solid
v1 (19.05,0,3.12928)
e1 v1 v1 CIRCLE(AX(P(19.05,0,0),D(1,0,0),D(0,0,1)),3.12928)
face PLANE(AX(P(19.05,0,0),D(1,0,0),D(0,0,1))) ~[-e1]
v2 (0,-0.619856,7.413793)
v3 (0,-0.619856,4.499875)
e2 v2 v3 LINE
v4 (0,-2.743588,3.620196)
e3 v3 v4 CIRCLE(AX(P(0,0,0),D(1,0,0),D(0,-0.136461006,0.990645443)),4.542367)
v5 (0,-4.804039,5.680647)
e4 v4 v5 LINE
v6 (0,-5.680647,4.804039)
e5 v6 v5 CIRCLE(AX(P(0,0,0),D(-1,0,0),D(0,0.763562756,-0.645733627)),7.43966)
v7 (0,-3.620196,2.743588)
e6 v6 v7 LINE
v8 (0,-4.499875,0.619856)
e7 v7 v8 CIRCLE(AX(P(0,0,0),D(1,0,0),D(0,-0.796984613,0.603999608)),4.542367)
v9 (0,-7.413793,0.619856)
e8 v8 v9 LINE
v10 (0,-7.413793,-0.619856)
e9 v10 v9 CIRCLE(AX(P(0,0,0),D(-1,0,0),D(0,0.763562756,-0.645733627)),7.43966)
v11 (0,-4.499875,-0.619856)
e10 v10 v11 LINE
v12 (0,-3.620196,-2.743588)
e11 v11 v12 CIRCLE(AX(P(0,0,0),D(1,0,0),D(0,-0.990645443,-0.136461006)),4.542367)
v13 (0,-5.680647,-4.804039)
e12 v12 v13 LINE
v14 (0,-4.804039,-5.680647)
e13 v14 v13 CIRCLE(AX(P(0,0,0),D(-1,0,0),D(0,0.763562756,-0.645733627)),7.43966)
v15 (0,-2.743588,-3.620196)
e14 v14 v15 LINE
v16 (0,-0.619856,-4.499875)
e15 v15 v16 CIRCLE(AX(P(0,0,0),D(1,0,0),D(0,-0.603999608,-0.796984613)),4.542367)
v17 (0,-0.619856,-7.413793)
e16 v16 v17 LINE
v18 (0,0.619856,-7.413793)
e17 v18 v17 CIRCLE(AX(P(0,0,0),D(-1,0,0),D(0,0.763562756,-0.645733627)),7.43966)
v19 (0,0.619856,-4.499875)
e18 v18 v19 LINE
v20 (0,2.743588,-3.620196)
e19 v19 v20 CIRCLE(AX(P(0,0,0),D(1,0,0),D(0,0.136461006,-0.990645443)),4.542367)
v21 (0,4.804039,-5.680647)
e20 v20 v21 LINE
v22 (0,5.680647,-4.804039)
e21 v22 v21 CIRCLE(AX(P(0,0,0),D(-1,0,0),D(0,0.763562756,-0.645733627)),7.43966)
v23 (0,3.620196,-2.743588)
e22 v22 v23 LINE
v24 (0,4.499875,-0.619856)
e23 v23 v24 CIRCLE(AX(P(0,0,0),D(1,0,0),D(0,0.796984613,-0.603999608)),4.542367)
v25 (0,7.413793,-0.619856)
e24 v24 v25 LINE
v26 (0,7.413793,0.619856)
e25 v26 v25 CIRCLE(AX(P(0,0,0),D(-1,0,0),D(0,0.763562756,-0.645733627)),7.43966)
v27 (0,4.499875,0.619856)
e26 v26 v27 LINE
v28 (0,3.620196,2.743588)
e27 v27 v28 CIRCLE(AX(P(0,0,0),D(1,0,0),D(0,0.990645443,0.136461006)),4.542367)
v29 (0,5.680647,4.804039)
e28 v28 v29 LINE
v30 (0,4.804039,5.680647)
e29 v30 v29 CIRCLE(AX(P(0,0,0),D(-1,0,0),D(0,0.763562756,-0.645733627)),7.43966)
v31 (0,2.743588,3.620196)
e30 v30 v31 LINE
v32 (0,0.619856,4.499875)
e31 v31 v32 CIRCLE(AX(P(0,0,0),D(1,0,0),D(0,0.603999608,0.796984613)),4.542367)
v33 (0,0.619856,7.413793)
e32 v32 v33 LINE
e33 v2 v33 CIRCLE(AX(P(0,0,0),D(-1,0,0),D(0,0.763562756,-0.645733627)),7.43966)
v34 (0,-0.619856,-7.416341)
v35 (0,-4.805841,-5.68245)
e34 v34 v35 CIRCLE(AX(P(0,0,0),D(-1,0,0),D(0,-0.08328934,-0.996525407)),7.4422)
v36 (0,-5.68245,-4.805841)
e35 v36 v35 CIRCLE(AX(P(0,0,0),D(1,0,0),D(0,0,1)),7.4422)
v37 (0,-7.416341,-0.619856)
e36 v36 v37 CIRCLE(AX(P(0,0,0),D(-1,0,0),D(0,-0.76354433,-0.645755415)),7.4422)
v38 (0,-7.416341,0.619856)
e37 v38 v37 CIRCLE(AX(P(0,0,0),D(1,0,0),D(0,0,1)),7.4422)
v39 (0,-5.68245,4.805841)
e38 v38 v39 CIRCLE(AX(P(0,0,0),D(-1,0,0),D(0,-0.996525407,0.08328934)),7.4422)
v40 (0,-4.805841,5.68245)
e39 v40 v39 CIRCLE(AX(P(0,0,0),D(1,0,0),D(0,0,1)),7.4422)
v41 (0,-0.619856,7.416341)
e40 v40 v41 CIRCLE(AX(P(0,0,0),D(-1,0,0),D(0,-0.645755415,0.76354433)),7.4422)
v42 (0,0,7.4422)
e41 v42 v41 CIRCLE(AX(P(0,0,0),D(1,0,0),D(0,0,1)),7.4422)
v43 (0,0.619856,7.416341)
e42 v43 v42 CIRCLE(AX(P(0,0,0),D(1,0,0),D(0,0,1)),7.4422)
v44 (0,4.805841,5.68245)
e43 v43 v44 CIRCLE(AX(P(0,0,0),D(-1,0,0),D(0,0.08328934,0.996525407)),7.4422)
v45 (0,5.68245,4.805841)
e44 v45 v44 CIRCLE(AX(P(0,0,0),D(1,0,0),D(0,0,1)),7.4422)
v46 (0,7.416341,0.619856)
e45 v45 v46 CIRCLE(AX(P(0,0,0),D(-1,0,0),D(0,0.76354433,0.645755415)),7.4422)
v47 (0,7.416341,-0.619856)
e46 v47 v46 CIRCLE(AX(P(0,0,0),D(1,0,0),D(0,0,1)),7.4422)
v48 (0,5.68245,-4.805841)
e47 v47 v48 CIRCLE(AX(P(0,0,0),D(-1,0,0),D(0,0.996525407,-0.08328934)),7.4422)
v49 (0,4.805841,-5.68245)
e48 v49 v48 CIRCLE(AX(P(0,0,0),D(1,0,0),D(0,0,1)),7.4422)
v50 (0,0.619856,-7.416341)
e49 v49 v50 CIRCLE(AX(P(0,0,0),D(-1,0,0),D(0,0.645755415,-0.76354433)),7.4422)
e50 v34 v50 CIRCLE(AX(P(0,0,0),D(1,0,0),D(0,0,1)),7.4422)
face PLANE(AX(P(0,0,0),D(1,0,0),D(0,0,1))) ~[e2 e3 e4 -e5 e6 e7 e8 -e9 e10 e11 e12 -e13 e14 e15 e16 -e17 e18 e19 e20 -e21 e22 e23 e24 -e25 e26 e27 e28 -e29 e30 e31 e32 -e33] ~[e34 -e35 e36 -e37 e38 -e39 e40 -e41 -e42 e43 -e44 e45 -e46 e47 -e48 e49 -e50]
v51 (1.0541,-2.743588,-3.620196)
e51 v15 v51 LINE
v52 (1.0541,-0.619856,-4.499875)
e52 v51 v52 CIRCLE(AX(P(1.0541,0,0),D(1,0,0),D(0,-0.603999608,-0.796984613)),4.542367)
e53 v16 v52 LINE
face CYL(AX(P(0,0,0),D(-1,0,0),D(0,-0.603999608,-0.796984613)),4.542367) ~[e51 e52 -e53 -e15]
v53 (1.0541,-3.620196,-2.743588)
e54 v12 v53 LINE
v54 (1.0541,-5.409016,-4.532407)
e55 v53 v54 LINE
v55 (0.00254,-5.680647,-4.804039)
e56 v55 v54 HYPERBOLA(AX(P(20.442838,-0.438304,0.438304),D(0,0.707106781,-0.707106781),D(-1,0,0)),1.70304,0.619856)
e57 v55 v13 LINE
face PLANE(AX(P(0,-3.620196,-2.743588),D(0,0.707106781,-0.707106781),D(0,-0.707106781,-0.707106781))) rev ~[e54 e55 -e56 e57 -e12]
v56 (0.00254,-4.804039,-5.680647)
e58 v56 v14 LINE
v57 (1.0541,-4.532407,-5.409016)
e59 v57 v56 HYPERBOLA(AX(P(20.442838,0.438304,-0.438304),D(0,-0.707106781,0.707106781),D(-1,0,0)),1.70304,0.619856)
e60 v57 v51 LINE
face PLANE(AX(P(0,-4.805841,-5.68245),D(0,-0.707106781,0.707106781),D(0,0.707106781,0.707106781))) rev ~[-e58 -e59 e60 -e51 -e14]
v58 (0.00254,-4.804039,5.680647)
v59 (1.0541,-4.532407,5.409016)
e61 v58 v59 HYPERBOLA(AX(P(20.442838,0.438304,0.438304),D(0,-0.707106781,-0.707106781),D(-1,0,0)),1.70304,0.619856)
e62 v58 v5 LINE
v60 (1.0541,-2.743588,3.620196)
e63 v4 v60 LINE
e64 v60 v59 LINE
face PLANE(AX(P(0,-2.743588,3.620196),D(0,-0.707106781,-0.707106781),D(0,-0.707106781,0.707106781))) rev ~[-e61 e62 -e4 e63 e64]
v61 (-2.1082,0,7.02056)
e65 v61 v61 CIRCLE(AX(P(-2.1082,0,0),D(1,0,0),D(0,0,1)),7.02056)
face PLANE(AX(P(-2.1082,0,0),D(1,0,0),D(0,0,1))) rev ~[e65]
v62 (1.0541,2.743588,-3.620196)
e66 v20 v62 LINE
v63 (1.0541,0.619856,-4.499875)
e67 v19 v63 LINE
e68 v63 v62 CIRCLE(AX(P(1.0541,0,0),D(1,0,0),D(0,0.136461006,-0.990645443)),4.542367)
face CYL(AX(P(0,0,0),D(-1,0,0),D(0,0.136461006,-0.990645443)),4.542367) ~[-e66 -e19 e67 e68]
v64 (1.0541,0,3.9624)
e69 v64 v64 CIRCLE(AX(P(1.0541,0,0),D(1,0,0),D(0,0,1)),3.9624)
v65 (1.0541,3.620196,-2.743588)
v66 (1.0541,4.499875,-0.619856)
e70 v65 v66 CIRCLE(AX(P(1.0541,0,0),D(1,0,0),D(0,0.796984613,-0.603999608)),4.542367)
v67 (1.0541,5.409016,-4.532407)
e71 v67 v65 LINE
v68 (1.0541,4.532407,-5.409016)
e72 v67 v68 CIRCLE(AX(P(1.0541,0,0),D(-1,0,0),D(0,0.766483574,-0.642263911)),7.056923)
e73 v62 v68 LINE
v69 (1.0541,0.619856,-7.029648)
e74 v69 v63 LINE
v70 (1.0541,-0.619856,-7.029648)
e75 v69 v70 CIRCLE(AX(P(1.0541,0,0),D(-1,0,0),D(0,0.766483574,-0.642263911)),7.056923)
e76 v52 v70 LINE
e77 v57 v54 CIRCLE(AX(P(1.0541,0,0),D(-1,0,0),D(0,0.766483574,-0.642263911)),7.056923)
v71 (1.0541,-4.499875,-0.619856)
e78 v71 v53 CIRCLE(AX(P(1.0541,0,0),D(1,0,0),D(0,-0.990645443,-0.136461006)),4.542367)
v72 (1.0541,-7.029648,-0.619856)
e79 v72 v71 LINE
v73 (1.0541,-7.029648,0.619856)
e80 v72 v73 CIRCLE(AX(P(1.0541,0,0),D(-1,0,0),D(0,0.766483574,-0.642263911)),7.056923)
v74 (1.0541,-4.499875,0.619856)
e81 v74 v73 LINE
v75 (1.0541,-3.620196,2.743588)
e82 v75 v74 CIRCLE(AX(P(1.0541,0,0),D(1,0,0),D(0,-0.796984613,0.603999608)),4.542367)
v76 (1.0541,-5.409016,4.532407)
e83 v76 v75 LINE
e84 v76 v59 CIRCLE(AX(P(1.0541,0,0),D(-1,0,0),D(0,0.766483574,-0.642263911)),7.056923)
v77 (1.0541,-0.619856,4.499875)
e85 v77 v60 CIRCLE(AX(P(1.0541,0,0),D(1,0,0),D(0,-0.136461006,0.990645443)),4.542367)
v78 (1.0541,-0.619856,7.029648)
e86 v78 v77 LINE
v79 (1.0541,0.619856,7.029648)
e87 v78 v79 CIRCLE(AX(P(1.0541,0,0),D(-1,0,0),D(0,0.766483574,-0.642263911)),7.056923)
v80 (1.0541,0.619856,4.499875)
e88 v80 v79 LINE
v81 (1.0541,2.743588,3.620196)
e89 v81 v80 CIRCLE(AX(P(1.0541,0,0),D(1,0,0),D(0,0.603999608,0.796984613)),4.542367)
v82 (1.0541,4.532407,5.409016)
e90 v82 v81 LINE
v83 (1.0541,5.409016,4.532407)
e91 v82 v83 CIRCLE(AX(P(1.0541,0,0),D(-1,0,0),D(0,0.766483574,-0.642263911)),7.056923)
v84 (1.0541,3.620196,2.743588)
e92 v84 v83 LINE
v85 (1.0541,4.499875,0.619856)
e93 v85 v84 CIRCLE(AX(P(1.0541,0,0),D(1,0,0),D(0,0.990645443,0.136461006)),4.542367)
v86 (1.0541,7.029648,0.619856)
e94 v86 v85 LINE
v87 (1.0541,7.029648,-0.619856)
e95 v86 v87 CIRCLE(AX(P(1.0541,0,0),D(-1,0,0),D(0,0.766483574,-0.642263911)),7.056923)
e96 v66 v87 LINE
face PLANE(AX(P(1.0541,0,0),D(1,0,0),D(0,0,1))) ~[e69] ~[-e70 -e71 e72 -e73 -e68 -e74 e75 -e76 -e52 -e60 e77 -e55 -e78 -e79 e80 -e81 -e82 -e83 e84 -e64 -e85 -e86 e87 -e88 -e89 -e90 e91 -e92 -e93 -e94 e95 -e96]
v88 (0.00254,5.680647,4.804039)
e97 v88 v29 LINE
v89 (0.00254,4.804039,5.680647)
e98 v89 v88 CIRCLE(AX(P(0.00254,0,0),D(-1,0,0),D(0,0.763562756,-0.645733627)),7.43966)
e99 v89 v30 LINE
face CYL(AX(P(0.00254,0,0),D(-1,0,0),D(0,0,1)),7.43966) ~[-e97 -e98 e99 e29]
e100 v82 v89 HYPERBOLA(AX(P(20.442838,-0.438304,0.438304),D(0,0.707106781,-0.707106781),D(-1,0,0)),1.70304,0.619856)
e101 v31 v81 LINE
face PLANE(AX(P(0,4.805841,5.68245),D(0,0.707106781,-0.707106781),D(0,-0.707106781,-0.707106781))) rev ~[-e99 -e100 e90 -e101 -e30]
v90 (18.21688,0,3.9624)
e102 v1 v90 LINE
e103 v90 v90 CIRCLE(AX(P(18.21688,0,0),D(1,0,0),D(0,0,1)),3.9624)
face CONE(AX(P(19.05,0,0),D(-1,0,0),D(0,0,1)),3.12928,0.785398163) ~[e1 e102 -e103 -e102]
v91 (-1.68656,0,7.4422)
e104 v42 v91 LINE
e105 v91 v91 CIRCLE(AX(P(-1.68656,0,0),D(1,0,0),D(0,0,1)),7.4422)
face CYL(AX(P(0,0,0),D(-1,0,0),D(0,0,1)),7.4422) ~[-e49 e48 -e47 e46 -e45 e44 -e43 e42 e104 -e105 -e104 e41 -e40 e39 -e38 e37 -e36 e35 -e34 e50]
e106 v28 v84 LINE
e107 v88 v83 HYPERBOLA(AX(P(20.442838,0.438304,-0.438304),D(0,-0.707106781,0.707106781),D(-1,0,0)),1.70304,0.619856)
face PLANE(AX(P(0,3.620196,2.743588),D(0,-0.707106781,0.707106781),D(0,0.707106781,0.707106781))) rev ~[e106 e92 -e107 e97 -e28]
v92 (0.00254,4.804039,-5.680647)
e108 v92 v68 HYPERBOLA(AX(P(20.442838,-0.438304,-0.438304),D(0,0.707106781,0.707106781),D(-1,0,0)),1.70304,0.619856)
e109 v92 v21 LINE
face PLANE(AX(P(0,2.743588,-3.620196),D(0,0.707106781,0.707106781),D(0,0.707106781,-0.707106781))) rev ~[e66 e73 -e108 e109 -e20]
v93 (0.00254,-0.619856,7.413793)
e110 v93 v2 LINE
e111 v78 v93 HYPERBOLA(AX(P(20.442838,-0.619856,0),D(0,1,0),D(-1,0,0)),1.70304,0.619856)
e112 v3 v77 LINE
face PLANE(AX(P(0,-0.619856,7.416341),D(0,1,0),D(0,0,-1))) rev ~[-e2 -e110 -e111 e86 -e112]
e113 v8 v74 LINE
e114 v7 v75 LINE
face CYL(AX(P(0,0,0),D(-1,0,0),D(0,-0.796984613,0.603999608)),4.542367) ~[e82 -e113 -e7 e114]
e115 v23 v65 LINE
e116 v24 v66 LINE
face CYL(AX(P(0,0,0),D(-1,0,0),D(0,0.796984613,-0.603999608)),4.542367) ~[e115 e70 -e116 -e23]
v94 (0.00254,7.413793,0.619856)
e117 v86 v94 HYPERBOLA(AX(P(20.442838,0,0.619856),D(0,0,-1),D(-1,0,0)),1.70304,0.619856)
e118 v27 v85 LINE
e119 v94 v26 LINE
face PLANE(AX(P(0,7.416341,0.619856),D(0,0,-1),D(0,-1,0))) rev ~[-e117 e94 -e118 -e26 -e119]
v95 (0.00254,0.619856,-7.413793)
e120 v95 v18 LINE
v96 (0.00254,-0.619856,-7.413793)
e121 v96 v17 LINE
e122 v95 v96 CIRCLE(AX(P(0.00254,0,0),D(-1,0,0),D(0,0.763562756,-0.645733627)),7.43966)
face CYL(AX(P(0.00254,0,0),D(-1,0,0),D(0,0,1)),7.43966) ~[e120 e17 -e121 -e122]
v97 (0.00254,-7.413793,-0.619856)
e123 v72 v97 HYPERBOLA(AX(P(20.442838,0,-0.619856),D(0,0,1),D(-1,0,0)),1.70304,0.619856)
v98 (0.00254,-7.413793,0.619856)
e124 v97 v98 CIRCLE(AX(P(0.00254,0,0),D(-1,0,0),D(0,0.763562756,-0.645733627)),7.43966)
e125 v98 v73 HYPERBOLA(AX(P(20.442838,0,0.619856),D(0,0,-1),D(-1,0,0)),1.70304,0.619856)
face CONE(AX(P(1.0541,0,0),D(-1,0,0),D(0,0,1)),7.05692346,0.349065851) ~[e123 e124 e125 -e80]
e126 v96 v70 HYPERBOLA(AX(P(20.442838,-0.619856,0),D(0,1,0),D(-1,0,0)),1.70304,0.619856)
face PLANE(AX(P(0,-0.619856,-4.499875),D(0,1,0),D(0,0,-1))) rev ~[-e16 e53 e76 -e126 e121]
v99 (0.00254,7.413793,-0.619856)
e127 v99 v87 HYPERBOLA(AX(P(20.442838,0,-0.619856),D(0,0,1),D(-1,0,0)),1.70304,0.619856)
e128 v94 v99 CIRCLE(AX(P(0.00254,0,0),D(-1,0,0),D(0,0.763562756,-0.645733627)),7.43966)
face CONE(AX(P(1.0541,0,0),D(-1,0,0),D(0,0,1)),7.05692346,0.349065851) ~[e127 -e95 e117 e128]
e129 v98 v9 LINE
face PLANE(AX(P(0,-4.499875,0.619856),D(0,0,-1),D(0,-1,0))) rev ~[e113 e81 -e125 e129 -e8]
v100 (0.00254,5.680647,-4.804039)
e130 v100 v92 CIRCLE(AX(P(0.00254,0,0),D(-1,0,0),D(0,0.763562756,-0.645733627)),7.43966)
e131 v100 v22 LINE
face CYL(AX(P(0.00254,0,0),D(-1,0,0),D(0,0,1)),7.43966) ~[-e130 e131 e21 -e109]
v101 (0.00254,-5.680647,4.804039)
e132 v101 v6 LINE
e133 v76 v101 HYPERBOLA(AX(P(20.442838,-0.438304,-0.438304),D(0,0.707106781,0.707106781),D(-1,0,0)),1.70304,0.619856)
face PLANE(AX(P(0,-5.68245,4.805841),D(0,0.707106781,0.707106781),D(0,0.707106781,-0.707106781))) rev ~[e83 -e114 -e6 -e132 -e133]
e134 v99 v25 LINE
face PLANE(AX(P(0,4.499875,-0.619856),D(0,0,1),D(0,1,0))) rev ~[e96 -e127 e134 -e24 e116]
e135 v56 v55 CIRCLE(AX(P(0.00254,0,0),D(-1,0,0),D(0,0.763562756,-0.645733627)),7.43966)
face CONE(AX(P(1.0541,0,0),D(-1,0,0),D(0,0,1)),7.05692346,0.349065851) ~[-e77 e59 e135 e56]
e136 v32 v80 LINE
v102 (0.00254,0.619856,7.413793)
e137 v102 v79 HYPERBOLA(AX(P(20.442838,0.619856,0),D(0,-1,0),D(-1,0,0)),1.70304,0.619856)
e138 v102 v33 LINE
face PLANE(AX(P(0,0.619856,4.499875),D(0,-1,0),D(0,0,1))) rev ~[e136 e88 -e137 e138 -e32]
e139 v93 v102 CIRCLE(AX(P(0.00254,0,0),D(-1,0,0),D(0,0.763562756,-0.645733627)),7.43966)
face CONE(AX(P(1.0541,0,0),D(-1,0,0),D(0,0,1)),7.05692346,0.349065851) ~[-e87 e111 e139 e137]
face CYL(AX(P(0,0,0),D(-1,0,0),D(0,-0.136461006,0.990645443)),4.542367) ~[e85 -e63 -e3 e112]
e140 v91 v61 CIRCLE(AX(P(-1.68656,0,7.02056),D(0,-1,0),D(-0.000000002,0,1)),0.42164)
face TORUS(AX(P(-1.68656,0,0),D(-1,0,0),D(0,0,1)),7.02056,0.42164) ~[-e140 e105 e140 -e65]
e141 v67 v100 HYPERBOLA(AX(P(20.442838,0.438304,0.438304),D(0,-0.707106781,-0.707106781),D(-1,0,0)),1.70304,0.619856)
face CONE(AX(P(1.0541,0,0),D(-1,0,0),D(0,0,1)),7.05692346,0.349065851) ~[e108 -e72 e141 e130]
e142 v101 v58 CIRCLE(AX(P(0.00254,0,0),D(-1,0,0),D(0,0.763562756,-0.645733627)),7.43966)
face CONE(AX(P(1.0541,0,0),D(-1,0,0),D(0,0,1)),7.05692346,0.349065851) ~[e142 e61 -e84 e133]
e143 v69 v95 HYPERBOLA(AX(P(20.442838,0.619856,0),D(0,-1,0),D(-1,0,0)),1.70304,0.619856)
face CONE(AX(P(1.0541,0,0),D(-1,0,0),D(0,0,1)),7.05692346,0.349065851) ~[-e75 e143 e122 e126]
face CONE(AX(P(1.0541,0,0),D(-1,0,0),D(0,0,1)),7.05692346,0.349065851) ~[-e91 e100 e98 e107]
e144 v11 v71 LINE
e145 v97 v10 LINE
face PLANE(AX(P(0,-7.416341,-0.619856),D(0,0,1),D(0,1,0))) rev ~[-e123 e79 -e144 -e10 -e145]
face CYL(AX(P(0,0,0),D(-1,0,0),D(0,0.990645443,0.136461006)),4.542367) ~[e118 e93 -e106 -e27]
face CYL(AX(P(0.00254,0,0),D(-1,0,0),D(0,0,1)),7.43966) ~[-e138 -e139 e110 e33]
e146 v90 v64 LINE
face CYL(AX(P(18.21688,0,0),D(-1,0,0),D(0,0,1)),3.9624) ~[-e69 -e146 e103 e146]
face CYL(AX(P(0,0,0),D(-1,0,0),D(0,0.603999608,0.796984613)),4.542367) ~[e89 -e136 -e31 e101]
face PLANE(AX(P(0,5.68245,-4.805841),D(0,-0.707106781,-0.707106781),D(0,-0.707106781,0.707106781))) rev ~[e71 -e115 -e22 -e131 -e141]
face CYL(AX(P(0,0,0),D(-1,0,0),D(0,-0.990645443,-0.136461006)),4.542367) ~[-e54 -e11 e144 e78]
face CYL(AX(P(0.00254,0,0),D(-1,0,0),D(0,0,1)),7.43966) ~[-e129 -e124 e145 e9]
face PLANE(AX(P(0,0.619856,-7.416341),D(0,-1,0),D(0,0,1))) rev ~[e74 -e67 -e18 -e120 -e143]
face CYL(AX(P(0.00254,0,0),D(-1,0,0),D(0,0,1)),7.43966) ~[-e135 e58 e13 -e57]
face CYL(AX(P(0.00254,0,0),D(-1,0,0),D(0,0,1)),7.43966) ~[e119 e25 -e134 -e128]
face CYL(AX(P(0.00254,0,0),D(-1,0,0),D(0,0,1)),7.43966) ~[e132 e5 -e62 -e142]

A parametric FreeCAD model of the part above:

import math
import FreeCAD as App
import Part
import Sketcher
from FreeCAD import Vector
Q = App.Units.Quantity

doc = App.newDocument("Part")
params = doc.addObject("Spreadsheet::Sheet", "Params")
for row, (alias, value) in enumerate([
    ("sketch1_width", "0.833 in"),
    ("revolution_angle", "360 deg"),
    ("sketch2_radius", "0.293 in"),
    ("pocket1_length", "0.0415 in"),
], start=1):
    params.set(f"A{row}", alias)
    params.set(f"B{row}", "=" + value)
    params.setAlias(f"B{row}", alias)

body = doc.addObject("PartDesign::Body", "Body")

sketch1 = body.newObject("Sketcher::SketchObject", "Sketch")
sketch1.AttachmentSupport = (doc.getObject("XY_Plane"), [""])
sketch1.MapMode = "FlatFace"
sketch1.addGeometry(Part.LineSegment(Vector(-2.1082, 7.0206, 0), Vector(-2.1082, 0, 0)), False)
sketch1.addGeometry(Part.LineSegment(Vector(-2.1082, 0, 0), Vector(19.05, 0, 0)), False)
sketch1.addGeometry(Part.LineSegment(Vector(19.05, 0, 0), Vector(19.05, 3.1293, 0)), False)
sketch1.addGeometry(Part.LineSegment(Vector(19.05, 3.1293, 0), Vector(18.2169, 3.9624, 0)), False)
sketch1.addGeometry(Part.LineSegment(Vector(18.2169, 3.9624, 0), Vector(1.0541, 3.9624, 0)), False)
sketch1.addGeometry(Part.LineSegment(Vector(1.0541, 3.9624, 0), Vector(1.0541, 7.0569, 0)), False)
sketch1.addGeometry(Part.LineSegment(Vector(1.0541, 7.0569, 0), Vector(0.0025, 7.4397, 0)), False)
sketch1.addGeometry(Part.LineSegment(Vector(0.0025, 7.4397, 0), Vector(0, 7.4397, 0)), False)
sketch1.addGeometry(Part.LineSegment(Vector(0, 7.4397, 0), Vector(0, 7.4422, 0)), False)
sketch1.addGeometry(Part.LineSegment(Vector(0, 7.4422, 0), Vector(-1.6866, 7.4422, 0)), False)
sketch1.addGeometry(Part.ArcOfCircle(Part.Circle(Vector(-1.6866, 7.0206, 0), Vector(0, 0, 1), 0.4216), math.radians(90), math.radians(180)), False)
sketch1.addConstraint(Sketcher.Constraint("Coincident", 0, 2, 1, 1))
sketch1.addConstraint(Sketcher.Constraint("Coincident", 1, 2, 2, 1))
sketch1.addConstraint(Sketcher.Constraint("Coincident", 2, 2, 3, 1))
sketch1.addConstraint(Sketcher.Constraint("Coincident", 3, 2, 4, 1))
sketch1.addConstraint(Sketcher.Constraint("Coincident", 4, 2, 5, 1))
sketch1.addConstraint(Sketcher.Constraint("Coincident", 5, 2, 6, 1))
sketch1.addConstraint(Sketcher.Constraint("Coincident", 6, 2, 7, 1))
sketch1.addConstraint(Sketcher.Constraint("Coincident", 7, 2, 8, 1))
sketch1.addConstraint(Sketcher.Constraint("Coincident", 8, 2, 9, 1))
sketch1.addConstraint(Sketcher.Constraint("Tangent", 9, 2, 10, 1))
sketch1.addConstraint(Sketcher.Constraint("Tangent", 10, 2, 0, 1))
sketch1.addConstraint(Sketcher.Constraint("Vertical", 0))
sketch1.addConstraint(Sketcher.Constraint("Horizontal", 1))
sketch1.addConstraint(Sketcher.Constraint("Vertical", 2))
sketch1.addConstraint(Sketcher.Constraint("Horizontal", 4))
sketch1.addConstraint(Sketcher.Constraint("Vertical", 5))
sketch1.addConstraint(Sketcher.Constraint("Horizontal", 7))
sketch1.addConstraint(Sketcher.Constraint("Vertical", 8))
sketch1.addConstraint(Sketcher.Constraint("Horizontal", 9))
sketch1.addConstraint(Sketcher.Constraint("PointOnObject", 0, 2, -1))
sketch1.addConstraint(Sketcher.Constraint("PointOnObject", 7, 2, -2))
sketch1.addConstraint(Sketcher.Constraint("Equal", 7, 8))
sketch1.addConstraint(Sketcher.Constraint("Angle", 3, Q("135 deg")))
sketch1.addConstraint(Sketcher.Constraint("Angle", 6, Q("160 deg")))
sketch1.addConstraint(Sketcher.Constraint("Radius", 10, Q("0.0166 in")))
sketch1.addConstraint(Sketcher.Constraint("DistanceX", 1, 1, 1, 2, Q("0.833 in")))
sketch1.addConstraint(Sketcher.Constraint("DistanceX", -1, 1, 1, 2, Q("0.75 in")))
sketch1.addConstraint(Sketcher.Constraint("DistanceX", 4, 2, 4, 1, Q("0.6757 in")))
sketch1.addConstraint(Sketcher.Constraint("DistanceX", 7, 2, 7, 1, Q("0.0001 in")))
sketch1.addConstraint(Sketcher.Constraint("DistanceY", 0, 2, 0, 1, Q("0.2764 in")))
sketch1.addConstraint(Sketcher.Constraint("DistanceY", 2, 1, 2, 2, Q("0.1232 in")))
sketch1.addConstraint(Sketcher.Constraint("DistanceY", -1, 1, 3, 2, Q("0.156 in")))
sketch1.setExpression("Constraints[25]", "Params.sketch1_width")
revolution = body.newObject("PartDesign::Revolution", "Revolution")
revolution.Profile = sketch1
revolution.ReferenceAxis = (sketch1, ["H_Axis"])
revolution.setExpression("Angle", "Params.revolution_angle")

sketch2 = body.newObject("Sketcher::SketchObject", "Sketch001")
sketch2.AttachmentSupport = (doc.getObject("YZ_Plane"), [""])
sketch2.MapMode = "FlatFace"
sketch2.addGeometry(Part.LineSegment(Vector(7.4, -0.6, 0), Vector(4.5, -0.6, 0)), False)
sketch2.addGeometry(Part.ArcOfCircle(Part.Circle(Vector(0, 0, 0), Vector(0, 0, 1), 4.5), math.radians(-37), math.radians(-8)), False)
sketch2.addGeometry(Part.LineSegment(Vector(3.6, -2.7, 0), Vector(5.7, -4.8, 0)), False)
sketch2.addGeometry(Part.ArcOfCircle(Part.Circle(Vector(0, 0, 0), Vector(0, 0, 1), 7.4), math.radians(-40), math.radians(-5)), False)
sketch2.addConstraint(Sketcher.Constraint("Coincident", 0, 2, 1, 2))
sketch2.addConstraint(Sketcher.Constraint("Coincident", 1, 1, 2, 1))
sketch2.addConstraint(Sketcher.Constraint("Coincident", 2, 2, 3, 1))
sketch2.addConstraint(Sketcher.Constraint("Coincident", 3, 2, 0, 1))
sketch2.addConstraint(Sketcher.Constraint("Horizontal", 0))
sketch2.addConstraint(Sketcher.Constraint("Coincident", 1, 3, -1, 1))
sketch2.addConstraint(Sketcher.Constraint("Coincident", 3, 3, -1, 1))
sketch2.addConstraint(Sketcher.Constraint("Angle", 2, Q("-45 deg")))
sketch2.addConstraint(Sketcher.Constraint("Radius", 3, Q("0.293 in")))
sketch2.addConstraint(Sketcher.Constraint("Radius", 1, 4.542367))
sketch2.addConstraint(Sketcher.Constraint("DistanceX", 0, 2, 0, 1, 2.916467))
sketch2.addConstraint(Sketcher.Constraint("DistanceX", -1, 1, 2, 2, 5.68245))
sketch2.setExpression("Constraints[8]", "Params.sketch2_radius")
pocket1 = body.newObject("PartDesign::Pocket", "Pocket")
pocket1.Profile = sketch2
pocket1.setExpression("Length", "Params.pocket1_length")
pocket1.Reversed = True
doc.recompute()

polarpattern = body.newObject("PartDesign::PolarPattern", "PolarPattern")
polarpattern.Originals = [pocket1]
polarpattern.Axis = (doc.getObject("X_Axis"), [""])
polarpattern.Angle = 360
polarpattern.Occurrences = 8
body.Tip = polarpattern

doc.recompute()
